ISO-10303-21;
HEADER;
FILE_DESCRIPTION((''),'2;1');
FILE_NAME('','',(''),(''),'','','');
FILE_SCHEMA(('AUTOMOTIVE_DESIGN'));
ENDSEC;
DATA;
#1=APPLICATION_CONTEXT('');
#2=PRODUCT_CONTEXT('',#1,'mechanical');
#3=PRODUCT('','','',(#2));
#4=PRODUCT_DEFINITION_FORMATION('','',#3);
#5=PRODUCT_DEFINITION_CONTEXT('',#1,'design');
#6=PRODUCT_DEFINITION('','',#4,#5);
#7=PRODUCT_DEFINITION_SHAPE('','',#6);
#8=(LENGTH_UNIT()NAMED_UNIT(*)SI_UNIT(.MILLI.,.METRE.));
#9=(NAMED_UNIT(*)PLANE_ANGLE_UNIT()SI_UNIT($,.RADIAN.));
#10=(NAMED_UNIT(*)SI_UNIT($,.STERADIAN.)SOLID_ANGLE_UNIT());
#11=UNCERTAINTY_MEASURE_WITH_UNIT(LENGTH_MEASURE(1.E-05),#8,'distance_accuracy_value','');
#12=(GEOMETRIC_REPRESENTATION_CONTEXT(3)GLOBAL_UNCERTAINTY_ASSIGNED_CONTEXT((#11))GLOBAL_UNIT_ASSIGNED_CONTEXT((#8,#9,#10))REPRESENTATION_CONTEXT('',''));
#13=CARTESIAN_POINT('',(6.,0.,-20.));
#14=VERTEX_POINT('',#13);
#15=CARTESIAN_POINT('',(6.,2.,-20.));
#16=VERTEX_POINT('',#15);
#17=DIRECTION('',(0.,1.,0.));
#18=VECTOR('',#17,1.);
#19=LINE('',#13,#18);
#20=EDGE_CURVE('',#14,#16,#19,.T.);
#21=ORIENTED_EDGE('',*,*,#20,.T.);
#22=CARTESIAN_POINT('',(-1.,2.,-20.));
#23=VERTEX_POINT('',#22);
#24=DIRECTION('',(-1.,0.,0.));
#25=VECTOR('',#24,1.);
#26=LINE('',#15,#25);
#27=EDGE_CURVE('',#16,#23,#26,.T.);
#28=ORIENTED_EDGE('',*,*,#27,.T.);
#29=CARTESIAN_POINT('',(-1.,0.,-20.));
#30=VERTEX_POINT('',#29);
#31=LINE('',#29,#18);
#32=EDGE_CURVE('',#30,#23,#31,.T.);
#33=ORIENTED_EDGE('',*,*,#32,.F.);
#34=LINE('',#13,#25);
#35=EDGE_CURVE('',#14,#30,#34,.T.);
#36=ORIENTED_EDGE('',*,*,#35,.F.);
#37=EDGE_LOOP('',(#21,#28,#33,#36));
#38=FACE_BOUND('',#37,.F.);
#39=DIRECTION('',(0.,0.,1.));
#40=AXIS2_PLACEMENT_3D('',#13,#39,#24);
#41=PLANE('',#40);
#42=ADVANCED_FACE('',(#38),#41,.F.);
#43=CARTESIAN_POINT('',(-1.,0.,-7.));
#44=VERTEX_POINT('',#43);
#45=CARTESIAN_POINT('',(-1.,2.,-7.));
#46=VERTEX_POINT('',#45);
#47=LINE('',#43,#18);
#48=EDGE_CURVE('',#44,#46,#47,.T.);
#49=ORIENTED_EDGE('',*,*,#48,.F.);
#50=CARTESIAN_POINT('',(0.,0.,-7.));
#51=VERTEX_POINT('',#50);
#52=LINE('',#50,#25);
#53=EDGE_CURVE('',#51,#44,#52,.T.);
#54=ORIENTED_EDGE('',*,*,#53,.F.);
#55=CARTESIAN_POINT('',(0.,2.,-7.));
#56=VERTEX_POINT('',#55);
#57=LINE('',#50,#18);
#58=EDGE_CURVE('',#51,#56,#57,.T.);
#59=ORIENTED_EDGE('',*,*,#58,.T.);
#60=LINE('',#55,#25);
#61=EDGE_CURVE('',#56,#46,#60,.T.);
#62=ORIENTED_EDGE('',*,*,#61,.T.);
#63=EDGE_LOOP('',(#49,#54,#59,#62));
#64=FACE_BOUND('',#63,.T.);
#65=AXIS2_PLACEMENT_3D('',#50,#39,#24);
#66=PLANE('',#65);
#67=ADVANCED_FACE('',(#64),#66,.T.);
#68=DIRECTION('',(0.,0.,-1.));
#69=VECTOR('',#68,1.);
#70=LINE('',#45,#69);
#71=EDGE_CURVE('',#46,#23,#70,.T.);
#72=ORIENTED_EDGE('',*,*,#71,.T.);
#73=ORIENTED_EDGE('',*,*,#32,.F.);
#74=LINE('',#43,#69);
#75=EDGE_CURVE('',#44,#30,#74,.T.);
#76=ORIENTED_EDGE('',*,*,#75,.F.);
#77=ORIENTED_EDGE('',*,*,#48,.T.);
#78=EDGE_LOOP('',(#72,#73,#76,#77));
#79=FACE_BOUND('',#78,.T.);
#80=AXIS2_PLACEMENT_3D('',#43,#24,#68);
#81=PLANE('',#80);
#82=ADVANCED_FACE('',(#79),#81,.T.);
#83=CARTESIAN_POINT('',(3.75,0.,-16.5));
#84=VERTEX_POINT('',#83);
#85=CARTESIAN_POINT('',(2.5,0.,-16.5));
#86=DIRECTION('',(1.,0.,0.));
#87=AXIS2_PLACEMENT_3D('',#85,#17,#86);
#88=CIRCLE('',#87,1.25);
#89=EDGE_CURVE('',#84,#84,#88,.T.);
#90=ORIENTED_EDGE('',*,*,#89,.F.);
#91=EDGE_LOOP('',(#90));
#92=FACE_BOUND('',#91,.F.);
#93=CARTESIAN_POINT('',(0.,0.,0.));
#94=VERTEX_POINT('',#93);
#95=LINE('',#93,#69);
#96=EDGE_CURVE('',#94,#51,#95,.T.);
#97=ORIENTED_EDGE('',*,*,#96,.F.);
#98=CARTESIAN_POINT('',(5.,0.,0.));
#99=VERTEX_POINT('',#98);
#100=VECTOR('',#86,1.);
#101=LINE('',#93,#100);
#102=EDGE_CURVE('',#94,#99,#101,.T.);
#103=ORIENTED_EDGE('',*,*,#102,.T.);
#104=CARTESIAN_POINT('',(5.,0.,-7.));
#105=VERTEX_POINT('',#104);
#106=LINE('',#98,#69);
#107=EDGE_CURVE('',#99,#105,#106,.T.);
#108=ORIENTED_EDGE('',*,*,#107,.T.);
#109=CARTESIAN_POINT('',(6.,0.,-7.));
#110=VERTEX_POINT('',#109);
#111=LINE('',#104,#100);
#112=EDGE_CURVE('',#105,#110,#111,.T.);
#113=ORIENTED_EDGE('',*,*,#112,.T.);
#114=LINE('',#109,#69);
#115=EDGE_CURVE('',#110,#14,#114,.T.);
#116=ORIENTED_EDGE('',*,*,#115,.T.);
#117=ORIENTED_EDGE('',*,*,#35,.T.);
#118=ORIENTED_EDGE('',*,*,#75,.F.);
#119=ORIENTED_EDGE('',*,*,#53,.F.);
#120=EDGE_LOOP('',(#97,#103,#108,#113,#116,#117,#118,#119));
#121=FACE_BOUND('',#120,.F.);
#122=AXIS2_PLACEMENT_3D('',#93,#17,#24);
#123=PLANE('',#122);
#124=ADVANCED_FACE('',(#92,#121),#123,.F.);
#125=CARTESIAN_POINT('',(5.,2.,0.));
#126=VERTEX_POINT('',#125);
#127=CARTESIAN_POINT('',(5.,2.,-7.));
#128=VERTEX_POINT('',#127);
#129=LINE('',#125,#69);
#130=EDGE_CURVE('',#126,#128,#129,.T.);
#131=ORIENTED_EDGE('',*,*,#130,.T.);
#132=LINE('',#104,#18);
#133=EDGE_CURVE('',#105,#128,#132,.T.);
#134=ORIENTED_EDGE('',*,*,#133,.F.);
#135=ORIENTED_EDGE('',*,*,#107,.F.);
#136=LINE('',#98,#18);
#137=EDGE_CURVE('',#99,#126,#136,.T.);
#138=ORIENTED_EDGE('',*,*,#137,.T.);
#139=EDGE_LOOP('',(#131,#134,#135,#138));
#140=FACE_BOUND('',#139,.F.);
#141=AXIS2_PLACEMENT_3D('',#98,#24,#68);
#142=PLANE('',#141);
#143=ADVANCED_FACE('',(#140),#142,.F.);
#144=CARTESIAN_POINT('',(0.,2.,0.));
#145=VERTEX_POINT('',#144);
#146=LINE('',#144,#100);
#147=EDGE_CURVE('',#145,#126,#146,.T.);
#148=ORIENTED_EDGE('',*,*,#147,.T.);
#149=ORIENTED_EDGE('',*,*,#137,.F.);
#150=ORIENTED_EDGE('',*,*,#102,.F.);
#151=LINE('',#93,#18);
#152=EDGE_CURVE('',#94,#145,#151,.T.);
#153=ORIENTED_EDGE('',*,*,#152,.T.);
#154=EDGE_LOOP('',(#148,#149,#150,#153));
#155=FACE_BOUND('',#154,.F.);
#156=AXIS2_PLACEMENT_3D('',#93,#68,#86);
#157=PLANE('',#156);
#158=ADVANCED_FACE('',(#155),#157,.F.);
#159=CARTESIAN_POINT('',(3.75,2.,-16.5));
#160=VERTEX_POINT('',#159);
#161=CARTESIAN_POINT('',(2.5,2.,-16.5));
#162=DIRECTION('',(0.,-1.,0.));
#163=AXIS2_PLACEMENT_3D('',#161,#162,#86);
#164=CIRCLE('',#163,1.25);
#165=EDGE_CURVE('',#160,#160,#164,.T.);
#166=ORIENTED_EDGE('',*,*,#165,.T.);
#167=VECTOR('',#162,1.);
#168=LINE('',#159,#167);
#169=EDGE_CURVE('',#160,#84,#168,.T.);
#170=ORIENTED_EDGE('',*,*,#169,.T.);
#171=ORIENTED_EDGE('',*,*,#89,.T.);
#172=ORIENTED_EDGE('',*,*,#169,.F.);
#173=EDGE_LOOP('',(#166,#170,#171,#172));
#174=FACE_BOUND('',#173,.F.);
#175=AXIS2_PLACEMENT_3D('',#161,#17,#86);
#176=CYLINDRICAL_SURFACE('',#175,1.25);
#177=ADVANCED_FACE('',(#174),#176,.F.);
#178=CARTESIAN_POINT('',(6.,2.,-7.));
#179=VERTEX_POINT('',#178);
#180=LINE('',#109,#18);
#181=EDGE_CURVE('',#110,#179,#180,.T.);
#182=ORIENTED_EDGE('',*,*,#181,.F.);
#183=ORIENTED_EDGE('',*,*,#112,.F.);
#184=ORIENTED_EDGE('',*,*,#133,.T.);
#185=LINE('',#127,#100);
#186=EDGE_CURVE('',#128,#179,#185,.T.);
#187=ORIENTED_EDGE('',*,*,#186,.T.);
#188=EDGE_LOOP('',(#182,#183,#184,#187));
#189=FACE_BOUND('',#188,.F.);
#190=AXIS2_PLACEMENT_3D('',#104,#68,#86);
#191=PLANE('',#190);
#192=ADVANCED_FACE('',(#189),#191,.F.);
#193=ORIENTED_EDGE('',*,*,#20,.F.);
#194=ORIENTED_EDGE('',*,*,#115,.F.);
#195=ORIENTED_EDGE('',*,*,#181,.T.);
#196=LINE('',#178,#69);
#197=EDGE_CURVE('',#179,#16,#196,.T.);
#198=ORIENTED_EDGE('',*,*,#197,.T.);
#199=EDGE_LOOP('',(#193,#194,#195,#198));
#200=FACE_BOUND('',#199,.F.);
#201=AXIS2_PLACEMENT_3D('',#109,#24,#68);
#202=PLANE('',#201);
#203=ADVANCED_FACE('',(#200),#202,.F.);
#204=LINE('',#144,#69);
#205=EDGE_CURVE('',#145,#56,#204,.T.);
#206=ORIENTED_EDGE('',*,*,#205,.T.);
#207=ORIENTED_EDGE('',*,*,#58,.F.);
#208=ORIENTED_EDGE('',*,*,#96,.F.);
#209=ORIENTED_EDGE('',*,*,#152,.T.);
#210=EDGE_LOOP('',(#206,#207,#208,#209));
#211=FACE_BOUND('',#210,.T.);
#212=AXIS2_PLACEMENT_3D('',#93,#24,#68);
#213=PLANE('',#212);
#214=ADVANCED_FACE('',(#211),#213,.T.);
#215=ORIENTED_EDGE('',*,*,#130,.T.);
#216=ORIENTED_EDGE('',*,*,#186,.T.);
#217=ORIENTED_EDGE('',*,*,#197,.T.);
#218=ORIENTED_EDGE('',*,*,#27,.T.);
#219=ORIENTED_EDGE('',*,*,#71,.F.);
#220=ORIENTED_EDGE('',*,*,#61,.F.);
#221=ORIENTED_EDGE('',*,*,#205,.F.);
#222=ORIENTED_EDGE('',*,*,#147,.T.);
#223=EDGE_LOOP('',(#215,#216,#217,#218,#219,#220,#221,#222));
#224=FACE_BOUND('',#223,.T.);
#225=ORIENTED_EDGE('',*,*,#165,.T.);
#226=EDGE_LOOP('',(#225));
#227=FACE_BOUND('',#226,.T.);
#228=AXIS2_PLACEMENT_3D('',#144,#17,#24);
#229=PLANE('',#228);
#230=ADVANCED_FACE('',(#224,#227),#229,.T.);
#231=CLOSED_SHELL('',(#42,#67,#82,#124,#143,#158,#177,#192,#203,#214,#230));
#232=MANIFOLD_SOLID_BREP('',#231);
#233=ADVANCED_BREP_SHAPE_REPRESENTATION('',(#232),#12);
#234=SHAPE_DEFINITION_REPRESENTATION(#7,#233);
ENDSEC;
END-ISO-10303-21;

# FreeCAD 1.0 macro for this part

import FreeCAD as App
import Part
import Sketcher

V = App.Vector
Q = App.Units.Quantity

doc = App.newDocument("Part")
params = doc.addObject("Spreadsheet::Sheet", "Params")
for row, (alias, value) in enumerate([
    ("sketch1_width", "5 mm"),
    ("sketch1_width2", "1 mm"),
    ("sketch1_height", "13 mm"),
    ("pad1_length", "2 mm"),
    ("sketch2_diameter", "2.5 mm"),
    ("pocket1_length", "2 mm"),
], start=1):
    params.set(f"A{row}", alias)
    params.set(f"B{row}", "=" + value)
    params.setAlias(f"B{row}", alias)

body = doc.addObject("PartDesign::Body", "Body")

# Sketch on XZ plane
sketch1 = body.newObject("Sketcher::SketchObject", "Sketch")
sketch1.AttachmentSupport = (doc.getObject("XZ_Plane"), [""])
sketch1.MapMode = "FlatFace"
sketch1.addGeometry([
    Part.LineSegment(V(0, -7, 0), V(0, 0, 0)),  # 0
    Part.LineSegment(V(0, 0, 0), V(5, 0, 0)),  # 1
    Part.LineSegment(V(5, 0, 0), V(5, -7, 0)),  # 2
    Part.LineSegment(V(5, -7, 0), V(6, -7, 0)),  # 3
    Part.LineSegment(V(6, -7, 0), V(6, -20, 0)),  # 4
    Part.LineSegment(V(6, -20, 0), V(-1, -20, 0)),  # 5
    Part.LineSegment(V(-1, -20, 0), V(-1, -7, 0)),  # 6
    Part.LineSegment(V(-1, -7, 0), V(0, -7, 0)),  # 7
], False)
sketch1.addConstraint([
    Sketcher.Constraint("Coincident", 0, 2, 1, 1),
    Sketcher.Constraint("Coincident", 1, 2, 2, 1),
    Sketcher.Constraint("Coincident", 2, 2, 3, 1),
    Sketcher.Constraint("Coincident", 3, 2, 4, 1),
    Sketcher.Constraint("Coincident", 4, 2, 5, 1),
    Sketcher.Constraint("Coincident", 5, 2, 6, 1),
    Sketcher.Constraint("Coincident", 6, 2, 7, 1),
    Sketcher.Constraint("Coincident", 7, 2, 0, 1),
    Sketcher.Constraint("Vertical", 0),
    Sketcher.Constraint("Horizontal", 1),
    Sketcher.Constraint("Vertical", 2),
    Sketcher.Constraint("Horizontal", 3),
    Sketcher.Constraint("Vertical", 4),
    Sketcher.Constraint("Horizontal", 5),
    Sketcher.Constraint("Vertical", 6),
    Sketcher.Constraint("Horizontal", 7),
    Sketcher.Constraint("Coincident", 0, 2, -1, 1),
    Sketcher.Constraint("Horizontal", 3, 2, 6, 2),
    Sketcher.Constraint("Equal", 3, 7),
    Sketcher.Constraint("Equal", 5, 0),
    Sketcher.Constraint("DistanceX", 1, 1, 1, 2, Q("5 mm")),
    Sketcher.Constraint("DistanceX", 3, 1, 3, 2, Q("1 mm")),
    Sketcher.Constraint("DistanceY", 4, 2, 4, 1, Q("13 mm")),
])
sketch1.setExpression("Constraints[20]", "Params.sketch1_width")
sketch1.setExpression("Constraints[21]", "Params.sketch1_width2")
sketch1.setExpression("Constraints[22]", "Params.sketch1_height")
pad1 = body.newObject("PartDesign::Pad", "Pad")
pad1.Profile = sketch1
pad1.setExpression("Length", "Params.pad1_length")
pad1.Reversed = True

# Sketch on XZ plane
sketch2 = body.newObject("Sketcher::SketchObject", "Sketch001")
sketch2.AttachmentSupport = (doc.getObject("XZ_Plane"), [""])
sketch2.MapMode = "FlatFace"
sketch2.AttachmentOffset = App.Placement(V(0, 0, -2), App.Rotation())
sketch2.addGeometry(Part.Circle(V(2.5, -16.5, 0), V(0, 0, 1), 1.2), False)
sketch2.addConstraint([
    Sketcher.Constraint("Diameter", 0, Q("2.5 mm")),
    Sketcher.Constraint("DistanceX", -1, 1, 0, 3, Q("2.5 mm")),
    Sketcher.Constraint("DistanceY", 0, 3, -1, 1, Q("16.5 mm")),
])
sketch2.setExpression("Constraints[0]", "Params.sketch2_diameter")
pocket1 = body.newObject("PartDesign::Pocket", "Pocket")
pocket1.Profile = sketch2
pocket1.setExpression("Length", "Params.pocket1_length")
pocket1.Reversed = True

doc.recompute()
